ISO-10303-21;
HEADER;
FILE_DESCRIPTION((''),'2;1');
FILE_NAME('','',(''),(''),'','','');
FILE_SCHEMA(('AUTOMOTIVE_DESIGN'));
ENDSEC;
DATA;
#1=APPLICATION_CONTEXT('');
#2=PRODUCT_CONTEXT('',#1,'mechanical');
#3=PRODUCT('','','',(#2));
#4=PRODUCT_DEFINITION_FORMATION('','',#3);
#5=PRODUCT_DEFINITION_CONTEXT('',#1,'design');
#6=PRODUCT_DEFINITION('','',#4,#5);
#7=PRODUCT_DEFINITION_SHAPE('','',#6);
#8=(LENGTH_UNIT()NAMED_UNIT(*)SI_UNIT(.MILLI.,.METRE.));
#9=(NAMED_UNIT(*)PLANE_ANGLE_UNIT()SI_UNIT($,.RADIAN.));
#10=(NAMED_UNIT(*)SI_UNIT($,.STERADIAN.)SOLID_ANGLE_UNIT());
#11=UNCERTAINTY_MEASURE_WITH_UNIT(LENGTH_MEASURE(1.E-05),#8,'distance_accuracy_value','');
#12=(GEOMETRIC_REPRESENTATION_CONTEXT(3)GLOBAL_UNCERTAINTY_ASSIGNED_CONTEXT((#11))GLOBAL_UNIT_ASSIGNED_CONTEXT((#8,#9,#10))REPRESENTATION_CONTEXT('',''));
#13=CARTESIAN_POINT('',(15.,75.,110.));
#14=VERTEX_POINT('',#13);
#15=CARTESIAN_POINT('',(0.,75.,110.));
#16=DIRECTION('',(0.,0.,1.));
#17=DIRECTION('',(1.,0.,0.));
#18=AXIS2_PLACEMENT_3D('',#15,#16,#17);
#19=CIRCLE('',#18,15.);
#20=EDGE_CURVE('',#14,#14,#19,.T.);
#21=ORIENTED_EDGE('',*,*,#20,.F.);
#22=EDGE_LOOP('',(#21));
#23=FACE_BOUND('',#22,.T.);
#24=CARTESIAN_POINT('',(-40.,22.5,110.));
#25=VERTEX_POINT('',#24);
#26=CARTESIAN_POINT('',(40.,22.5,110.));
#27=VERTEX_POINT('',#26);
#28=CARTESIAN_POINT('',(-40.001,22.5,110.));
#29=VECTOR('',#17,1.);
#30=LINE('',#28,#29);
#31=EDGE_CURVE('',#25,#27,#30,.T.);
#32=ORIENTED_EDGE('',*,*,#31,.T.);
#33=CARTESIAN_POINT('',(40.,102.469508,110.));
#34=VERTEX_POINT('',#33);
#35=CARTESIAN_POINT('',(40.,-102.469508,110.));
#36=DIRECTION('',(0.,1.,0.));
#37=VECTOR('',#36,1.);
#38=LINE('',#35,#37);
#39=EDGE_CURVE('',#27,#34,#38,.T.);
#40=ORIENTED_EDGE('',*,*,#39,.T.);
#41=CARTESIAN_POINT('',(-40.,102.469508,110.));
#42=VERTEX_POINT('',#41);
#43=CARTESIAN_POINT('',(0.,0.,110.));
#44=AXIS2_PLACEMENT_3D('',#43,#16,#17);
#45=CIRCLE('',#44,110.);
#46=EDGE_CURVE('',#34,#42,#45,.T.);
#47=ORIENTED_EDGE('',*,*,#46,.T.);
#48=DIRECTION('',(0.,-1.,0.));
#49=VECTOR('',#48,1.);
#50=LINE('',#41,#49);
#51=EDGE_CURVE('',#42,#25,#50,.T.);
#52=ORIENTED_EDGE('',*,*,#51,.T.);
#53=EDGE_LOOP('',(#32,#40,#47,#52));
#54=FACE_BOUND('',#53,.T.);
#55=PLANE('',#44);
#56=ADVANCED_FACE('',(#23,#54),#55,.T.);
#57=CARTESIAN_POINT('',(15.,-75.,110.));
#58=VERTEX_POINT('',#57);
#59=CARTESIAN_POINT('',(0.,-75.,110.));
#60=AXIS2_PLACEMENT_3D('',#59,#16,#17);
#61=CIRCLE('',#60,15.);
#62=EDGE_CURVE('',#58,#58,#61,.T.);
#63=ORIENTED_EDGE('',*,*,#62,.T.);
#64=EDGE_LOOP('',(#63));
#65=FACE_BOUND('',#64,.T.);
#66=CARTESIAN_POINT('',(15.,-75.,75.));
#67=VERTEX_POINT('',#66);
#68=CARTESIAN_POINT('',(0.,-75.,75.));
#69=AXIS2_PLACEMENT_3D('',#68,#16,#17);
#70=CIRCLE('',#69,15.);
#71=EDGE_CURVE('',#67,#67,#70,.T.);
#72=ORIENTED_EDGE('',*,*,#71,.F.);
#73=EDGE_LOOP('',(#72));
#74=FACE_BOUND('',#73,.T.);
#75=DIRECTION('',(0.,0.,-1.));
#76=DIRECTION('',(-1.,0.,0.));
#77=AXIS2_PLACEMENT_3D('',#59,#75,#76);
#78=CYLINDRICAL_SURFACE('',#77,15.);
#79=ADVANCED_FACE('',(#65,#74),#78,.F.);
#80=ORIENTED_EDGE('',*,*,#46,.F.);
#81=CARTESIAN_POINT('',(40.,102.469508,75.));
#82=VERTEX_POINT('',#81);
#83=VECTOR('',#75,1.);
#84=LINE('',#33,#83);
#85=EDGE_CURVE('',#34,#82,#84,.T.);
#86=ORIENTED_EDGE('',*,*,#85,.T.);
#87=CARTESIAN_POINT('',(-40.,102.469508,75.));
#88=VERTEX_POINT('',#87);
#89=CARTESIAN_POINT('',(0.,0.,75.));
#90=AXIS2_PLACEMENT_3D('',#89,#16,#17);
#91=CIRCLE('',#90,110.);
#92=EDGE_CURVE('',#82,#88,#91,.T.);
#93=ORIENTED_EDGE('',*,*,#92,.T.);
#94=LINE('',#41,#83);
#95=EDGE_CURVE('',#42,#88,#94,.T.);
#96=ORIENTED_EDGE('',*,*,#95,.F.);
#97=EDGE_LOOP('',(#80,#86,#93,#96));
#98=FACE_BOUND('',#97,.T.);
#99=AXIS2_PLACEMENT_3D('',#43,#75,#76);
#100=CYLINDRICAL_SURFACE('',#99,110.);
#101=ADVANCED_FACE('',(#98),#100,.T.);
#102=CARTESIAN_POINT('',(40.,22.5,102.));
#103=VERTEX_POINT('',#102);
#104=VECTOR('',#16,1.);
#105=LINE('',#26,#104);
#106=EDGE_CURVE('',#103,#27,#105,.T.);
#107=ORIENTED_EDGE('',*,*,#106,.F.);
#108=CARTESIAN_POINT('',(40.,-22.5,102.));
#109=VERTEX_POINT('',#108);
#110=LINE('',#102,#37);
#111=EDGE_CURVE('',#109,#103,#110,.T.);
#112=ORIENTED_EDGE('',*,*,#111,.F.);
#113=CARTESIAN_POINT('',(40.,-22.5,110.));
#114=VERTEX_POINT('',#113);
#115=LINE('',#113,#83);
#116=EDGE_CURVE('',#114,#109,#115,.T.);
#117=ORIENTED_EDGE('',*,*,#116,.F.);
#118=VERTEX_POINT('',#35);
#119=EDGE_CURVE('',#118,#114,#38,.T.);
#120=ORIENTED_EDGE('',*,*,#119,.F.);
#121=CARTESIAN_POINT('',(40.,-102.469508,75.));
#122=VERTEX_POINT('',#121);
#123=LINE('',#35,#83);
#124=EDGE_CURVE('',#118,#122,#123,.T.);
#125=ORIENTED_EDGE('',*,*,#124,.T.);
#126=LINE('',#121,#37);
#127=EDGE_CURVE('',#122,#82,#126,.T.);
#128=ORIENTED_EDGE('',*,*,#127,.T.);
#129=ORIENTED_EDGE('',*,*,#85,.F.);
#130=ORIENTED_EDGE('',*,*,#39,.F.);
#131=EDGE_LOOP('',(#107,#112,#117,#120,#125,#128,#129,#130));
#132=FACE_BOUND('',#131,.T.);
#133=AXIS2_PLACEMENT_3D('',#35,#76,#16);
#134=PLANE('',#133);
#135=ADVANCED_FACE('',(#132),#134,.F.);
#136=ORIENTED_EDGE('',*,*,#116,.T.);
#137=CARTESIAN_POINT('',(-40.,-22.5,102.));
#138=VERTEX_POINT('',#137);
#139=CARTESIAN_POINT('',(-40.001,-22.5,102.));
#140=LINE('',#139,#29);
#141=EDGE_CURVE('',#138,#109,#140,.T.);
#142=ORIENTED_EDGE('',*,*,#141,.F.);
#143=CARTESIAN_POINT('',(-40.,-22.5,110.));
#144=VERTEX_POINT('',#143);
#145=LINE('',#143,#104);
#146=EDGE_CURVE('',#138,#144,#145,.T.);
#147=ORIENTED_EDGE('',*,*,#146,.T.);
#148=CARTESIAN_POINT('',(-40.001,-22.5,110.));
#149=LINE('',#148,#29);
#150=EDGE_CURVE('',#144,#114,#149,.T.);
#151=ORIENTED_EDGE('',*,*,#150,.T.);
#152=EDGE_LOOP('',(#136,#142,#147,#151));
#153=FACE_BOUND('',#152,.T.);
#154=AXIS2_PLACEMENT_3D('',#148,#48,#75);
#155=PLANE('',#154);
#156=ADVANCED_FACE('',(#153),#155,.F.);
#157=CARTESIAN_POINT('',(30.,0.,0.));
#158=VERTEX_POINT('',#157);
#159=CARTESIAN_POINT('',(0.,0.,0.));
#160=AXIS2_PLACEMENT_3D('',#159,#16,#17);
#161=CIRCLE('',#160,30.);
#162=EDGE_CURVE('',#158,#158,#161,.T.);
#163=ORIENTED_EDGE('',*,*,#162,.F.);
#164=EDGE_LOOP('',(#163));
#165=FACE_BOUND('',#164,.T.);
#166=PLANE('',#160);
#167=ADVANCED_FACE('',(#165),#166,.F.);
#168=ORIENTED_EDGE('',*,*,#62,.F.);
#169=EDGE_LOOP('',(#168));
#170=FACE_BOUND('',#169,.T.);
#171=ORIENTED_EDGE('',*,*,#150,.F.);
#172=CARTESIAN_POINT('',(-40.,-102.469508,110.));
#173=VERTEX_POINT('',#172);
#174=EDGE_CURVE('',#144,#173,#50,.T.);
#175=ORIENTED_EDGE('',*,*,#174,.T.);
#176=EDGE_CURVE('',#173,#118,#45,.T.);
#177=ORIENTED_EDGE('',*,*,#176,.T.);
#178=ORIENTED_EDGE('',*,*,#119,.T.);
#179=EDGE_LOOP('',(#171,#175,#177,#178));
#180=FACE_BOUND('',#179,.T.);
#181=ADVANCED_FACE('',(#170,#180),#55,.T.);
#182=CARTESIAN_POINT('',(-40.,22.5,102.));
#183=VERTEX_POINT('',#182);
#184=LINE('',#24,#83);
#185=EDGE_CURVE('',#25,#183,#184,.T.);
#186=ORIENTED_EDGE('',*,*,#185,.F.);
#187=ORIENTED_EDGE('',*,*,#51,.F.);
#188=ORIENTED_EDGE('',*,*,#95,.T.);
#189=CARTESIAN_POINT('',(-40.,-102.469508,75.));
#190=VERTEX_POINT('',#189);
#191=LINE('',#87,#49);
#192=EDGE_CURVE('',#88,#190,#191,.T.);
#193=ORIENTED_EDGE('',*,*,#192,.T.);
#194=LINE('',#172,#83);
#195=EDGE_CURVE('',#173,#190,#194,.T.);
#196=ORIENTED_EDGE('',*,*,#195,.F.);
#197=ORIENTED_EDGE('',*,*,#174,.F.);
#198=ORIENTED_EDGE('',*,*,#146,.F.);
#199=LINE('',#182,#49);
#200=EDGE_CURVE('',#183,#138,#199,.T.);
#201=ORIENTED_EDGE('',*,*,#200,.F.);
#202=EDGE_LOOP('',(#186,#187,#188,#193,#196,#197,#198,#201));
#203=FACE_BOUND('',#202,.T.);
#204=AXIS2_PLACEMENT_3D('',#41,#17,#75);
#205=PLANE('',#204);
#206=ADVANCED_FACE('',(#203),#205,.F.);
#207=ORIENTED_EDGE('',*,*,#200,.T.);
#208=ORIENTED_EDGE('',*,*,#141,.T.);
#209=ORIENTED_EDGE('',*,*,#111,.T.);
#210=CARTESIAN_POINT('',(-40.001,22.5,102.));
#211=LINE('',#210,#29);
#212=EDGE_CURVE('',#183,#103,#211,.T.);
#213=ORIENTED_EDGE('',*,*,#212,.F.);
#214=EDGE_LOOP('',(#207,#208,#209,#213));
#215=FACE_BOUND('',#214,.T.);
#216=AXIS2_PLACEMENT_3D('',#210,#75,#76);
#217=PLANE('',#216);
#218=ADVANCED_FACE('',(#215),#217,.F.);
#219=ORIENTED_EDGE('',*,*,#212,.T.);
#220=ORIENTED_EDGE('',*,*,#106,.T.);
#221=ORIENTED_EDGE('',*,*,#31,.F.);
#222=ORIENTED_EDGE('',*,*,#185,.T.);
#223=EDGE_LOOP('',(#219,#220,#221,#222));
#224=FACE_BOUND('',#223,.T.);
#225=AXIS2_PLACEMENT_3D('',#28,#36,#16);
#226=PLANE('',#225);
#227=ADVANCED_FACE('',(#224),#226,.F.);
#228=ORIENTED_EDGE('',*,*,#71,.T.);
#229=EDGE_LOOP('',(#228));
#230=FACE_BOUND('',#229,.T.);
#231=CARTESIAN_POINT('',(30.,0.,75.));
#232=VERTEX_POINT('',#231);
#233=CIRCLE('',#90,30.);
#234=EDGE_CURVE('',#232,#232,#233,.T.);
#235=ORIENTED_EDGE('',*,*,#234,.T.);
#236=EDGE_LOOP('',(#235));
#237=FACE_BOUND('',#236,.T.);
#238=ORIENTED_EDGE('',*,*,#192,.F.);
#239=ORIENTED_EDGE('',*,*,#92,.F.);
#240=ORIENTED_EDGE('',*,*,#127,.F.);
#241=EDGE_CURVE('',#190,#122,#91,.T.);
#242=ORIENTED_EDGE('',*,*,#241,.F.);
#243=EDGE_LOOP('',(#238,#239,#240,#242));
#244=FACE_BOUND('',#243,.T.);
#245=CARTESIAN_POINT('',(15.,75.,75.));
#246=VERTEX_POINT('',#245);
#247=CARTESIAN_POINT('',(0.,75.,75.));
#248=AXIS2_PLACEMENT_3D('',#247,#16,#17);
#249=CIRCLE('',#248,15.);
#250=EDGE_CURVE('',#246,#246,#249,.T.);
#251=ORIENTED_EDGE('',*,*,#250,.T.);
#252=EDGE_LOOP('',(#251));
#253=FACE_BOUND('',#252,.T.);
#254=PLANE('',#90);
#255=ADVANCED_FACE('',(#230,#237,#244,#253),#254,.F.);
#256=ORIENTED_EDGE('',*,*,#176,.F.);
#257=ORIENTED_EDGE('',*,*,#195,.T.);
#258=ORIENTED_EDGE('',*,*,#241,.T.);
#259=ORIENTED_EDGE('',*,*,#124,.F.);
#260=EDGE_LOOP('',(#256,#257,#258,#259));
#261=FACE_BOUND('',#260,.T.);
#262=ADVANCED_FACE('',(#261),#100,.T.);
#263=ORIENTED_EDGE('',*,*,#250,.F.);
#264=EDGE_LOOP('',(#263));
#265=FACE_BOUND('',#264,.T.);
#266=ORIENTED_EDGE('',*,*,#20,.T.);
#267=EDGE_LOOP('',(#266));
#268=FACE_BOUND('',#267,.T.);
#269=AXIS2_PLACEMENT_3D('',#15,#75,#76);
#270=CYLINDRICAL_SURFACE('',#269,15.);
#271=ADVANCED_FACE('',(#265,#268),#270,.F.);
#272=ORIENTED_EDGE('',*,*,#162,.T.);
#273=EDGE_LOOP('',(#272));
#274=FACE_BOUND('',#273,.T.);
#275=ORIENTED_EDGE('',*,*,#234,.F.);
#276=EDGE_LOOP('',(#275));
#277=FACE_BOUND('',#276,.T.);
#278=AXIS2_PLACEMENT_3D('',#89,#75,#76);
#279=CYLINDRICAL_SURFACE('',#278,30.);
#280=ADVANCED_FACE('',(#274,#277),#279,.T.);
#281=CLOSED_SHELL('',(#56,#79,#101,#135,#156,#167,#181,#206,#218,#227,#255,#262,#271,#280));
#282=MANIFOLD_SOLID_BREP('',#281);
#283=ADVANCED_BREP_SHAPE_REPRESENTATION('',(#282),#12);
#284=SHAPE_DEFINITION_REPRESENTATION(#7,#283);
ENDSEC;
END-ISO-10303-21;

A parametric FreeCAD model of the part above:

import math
import FreeCAD as App
import Part
import Sketcher
Q = App.Units.Quantity

doc = App.newDocument("Part")
params = doc.addObject("Spreadsheet::Sheet", "Params")
for row, (alias, value) in enumerate([
    ("sketch1_diameter", "60 mm"),
    ("pad1_length", "75 mm"),
    ("sketch2_diameter", "30 mm"),
    ("sketch2_radius", "110 mm"),
    ("pad2_length", "35 mm"),
    ("sketch3_width", "45 mm"),
    ("sketch3_height", "8 mm"),
], start=1):
    params.set(f"A{row}", alias)
    params.set(f"B{row}", "=" + value)
    params.setAlias(f"B{row}", alias)

body = doc.addObject("PartDesign::Body", "Body")

# Sketch on XY plane
sketch1 = doc.addObject("Sketcher::SketchObject", "Sketch")
body.addObject(sketch1)
sketch1.AttachmentSupport = (doc.XY_Plane, [""])
sketch1.MapMode = "FlatFace"
sketch1.addGeometry(Part.Circle(App.Vector(0, 0, 0), App.Vector(0, 0, 1), 30), False)
sketch1.addConstraint([
    Sketcher.Constraint("Coincident", 0, 3, -1, 1),
    Sketcher.Constraint("Diameter", 0, Q("60 mm")),
])
sketch1.setExpression("Constraints[1]", "Params.sketch1_diameter")
pad1 = doc.addObject("PartDesign::Pad", "Pad")
body.addObject(pad1)
pad1.Profile = sketch1
pad1.setExpression("Length", "Params.pad1_length")

# Sketch on XY plane
sketch2 = doc.addObject("Sketcher::SketchObject", "Sketch001")
body.addObject(sketch2)
sketch2.AttachmentSupport = (doc.XY_Plane, [""])
sketch2.MapMode = "FlatFace"
sketch2.AttachmentOffset = App.Placement(App.Vector(0, 0, 75), App.Rotation())
sketch2.addGeometry([
    Part.LineSegment(App.Vector(-40, 102.469508, 0), App.Vector(-40, -102.469508, 0)),  # 0
    Part.ArcOfCircle(Part.Circle(App.Vector(0, 0, 0), App.Vector(0, 0, 1), 110), math.radians(-111.323686), math.radians(-68.676314)),  # 1
    Part.LineSegment(App.Vector(40, -102.469508, 0), App.Vector(40, 102.469508, 0)),  # 2
    Part.ArcOfCircle(Part.Circle(App.Vector(0, 0, 0), App.Vector(0, 0, 1), 110), math.radians(68.676314), math.radians(111.323686)),  # 3
    Part.Circle(App.Vector(0, -75, 0), App.Vector(0, 0, 1), 15),  # 4
    Part.Circle(App.Vector(0, 75, 0), App.Vector(0, 0, 1), 15),  # 5
], False)
sketch2.addConstraint([
    Sketcher.Constraint("Coincident", 0, 2, 1, 1),
    Sketcher.Constraint("Coincident", 1, 2, 2, 1),
    Sketcher.Constraint("Coincident", 2, 2, 3, 1),
    Sketcher.Constraint("Coincident", 3, 2, 0, 1),
    Sketcher.Constraint("Vertical", 0),
    Sketcher.Constraint("Vertical", 2),
    Sketcher.Constraint("Coincident", 1, 3, -1, 1),
    Sketcher.Constraint("Coincident", 3, 3, -1, 1),
    Sketcher.Constraint("Equal", 1, 3),
    Sketcher.Constraint("Equal", 4, 5),
    Sketcher.Constraint("Symmetric", 4, 3, 5, 3, -1, 1),
    Sketcher.Constraint("PointOnObject", 4, 3, -2),
    Sketcher.Constraint("Horizontal", 0, 2, 1, 2),
    Sketcher.Constraint("Diameter", 4, Q("30 mm")),
    Sketcher.Constraint("Radius", 1, Q("110 mm")),
    Sketcher.Constraint("DistanceY", 4, 3, -1, 1, Q("75 mm")),
    Sketcher.Constraint("DistanceX", 0, 2, -1, 1, Q("40 mm")),
])
sketch2.setExpression("Constraints[13]", "Params.sketch2_diameter")
sketch2.setExpression("Constraints[14]", "Params.sketch2_radius")
pad2 = doc.addObject("PartDesign::Pad", "Pad001")
body.addObject(pad2)
pad2.Profile = sketch2
pad2.setExpression("Length", "Params.pad2_length")

# Sketch on YZ plane
sketch3 = doc.addObject("Sketcher::SketchObject", "Sketch002")
body.addObject(sketch3)
sketch3.AttachmentSupport = (doc.YZ_Plane, [""])
sketch3.MapMode = "FlatFace"
sketch3.AttachmentOffset = App.Placement(App.Vector(0, 0, 40), App.Rotation())
sketch3.addGeometry([
    Part.LineSegment(App.Vector(22.5, 110, 0), App.Vector(-22.5, 110, 0)),
    Part.LineSegment(App.Vector(-22.5, 110, 0), App.Vector(-22.5, 102, 0)),
    Part.LineSegment(App.Vector(-22.5, 102, 0), App.Vector(22.5, 102, 0)),
    Part.LineSegment(App.Vector(22.5, 102, 0), App.Vector(22.5, 110, 0)),
], False)
sketch3.addConstraint([
    Sketcher.Constraint("Coincident", 0, 2, 1, 1),
    Sketcher.Constraint("Coincident", 1, 2, 2, 1),
    Sketcher.Constraint("Coincident", 2, 2, 3, 1),
    Sketcher.Constraint("Coincident", 3, 2, 0, 1),
    Sketcher.Constraint("Horizontal", 0),
    Sketcher.Constraint("Vertical", 1),
    Sketcher.Constraint("Horizontal", 2),
    Sketcher.Constraint("Vertical", 3),
    Sketcher.Constraint("DistanceX", 0, 2, 0, 1, Q("45 mm")),
    Sketcher.Constraint("DistanceY", 1, 2, 1, 1, Q("8 mm")),
    Sketcher.Constraint("DistanceY", -1, 1, 0, 2, Q("110 mm")),
    Sketcher.Constraint("DistanceX", 0, 2, -1, 1, Q("22.5 mm")),
])
sketch3.setExpression("Constraints[8]", "Params.sketch3_width")
sketch3.setExpression("Constraints[9]", "Params.sketch3_height")
pocket1 = doc.addObject("PartDesign::Pocket", "Pocket")
body.addObject(pocket1)
pocket1.Profile = sketch3
pocket1.Type = "UpToFirst"

doc.recompute()
